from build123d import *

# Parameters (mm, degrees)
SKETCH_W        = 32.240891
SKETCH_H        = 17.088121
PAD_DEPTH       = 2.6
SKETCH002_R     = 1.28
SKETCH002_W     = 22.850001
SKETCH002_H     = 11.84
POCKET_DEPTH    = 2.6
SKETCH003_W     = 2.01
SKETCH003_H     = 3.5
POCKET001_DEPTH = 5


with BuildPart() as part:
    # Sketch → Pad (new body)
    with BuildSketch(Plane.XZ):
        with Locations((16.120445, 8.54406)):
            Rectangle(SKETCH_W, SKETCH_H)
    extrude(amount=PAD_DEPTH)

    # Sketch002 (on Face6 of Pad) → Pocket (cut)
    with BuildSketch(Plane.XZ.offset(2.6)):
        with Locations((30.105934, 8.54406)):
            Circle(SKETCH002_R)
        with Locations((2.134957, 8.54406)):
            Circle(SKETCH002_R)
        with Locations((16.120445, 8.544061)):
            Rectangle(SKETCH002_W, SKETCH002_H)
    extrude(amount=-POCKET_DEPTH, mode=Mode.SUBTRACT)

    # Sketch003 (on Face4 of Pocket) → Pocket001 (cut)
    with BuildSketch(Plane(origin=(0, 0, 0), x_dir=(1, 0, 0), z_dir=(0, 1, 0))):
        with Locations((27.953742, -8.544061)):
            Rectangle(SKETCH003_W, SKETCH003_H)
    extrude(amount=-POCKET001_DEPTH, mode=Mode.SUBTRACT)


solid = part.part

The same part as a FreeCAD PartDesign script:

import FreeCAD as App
import Part
import Sketcher
from FreeCAD import Vector

doc = App.newDocument("Part")
body = doc.addObject("PartDesign::Body", "Body")

# Sketch on XZ plane
sketch1 = body.newObject("Sketcher::SketchObject", "Sketch")
sketch1.AttachmentSupport = (doc.getObject("XZ_Plane"), [""])
sketch1.MapMode = "FlatFace"
sketch1.addGeometry([
    Part.LineSegment(Vector(0, 17, 0), Vector(0, 0, 0)),
    Part.LineSegment(Vector(0, 0, 0), Vector(32, 0, 0)),
    Part.LineSegment(Vector(32, 0, 0), Vector(32, 17, 0)),
    Part.LineSegment(Vector(32, 17, 0), Vector(0, 17, 0)),
], False)
sketch1.addConstraint([
    Sketcher.Constraint("Coincident", 0, 2, 1, 1),
    Sketcher.Constraint("Coincident", 1, 2, 2, 1),
    Sketcher.Constraint("Coincident", 2, 2, 3, 1),
    Sketcher.Constraint("Coincident", 3, 2, 0, 1),
    Sketcher.Constraint("Vertical", 0),
    Sketcher.Constraint("Horizontal", 1),
    Sketcher.Constraint("Vertical", 2),
    Sketcher.Constraint("Horizontal", 3),
    Sketcher.Constraint("Coincident", 0, 2, -1, 1),
    Sketcher.Constraint("DistanceX", 1, 1, 1, 2, 32.240891),
    Sketcher.Constraint("DistanceY", 0, 2, 0, 1, 17.088121),
])
pad1 = body.newObject("PartDesign::Pad", "Pad")
pad1.Profile = sketch1
pad1.Length = 2.6

# Sketch on XZ plane
sketch2 = body.newObject("Sketcher::SketchObject", "Sketch001")
sketch2.AttachmentSupport = (doc.getObject("XZ_Plane"), [""])
sketch2.MapMode = "FlatFace"
sketch2.AttachmentOffset = App.Placement(Vector(0, 0, 2.6), App.Rotation())
sketch2.addGeometry([
    Part.Circle(Vector(30.1, 8.5, 0), Vector(0, 0, 1), 1.3),  # 0
    Part.Circle(Vector(2.1, 8.5, 0), Vector(0, 0, 1), 1.3),  # 1
    Part.LineSegment(Vector(4.7, 14.5, 0), Vector(4.7, 2.6, 0)),  # 2
    Part.LineSegment(Vector(4.7, 2.6, 0), Vector(27.5, 2.6, 0)),  # 3
    Part.LineSegment(Vector(27.5, 2.6, 0), Vector(27.5, 14.5, 0)),  # 4
    Part.LineSegment(Vector(27.5, 14.5, 0), Vector(4.7, 14.5, 0)),  # 5
], False)
sketch2.addConstraint([
    Sketcher.Constraint("Coincident", 2, 2, 3, 1),
    Sketcher.Constraint("Coincident", 3, 2, 4, 1),
    Sketcher.Constraint("Coincident", 4, 2, 5, 1),
    Sketcher.Constraint("Coincident", 5, 2, 2, 1),
    Sketcher.Constraint("Vertical", 2),
    Sketcher.Constraint("Horizontal", 3),
    Sketcher.Constraint("Vertical", 4),
    Sketcher.Constraint("Horizontal", 5),
    Sketcher.Constraint("Equal", 0, 1),
    Sketcher.Constraint("Horizontal", 0, 3, 1, 3),
    Sketcher.Constraint("Diameter", 0, 2.56),
    Sketcher.Constraint("DistanceX", 3, 1, 3, 2, 22.850001),
    Sketcher.Constraint("DistanceY", 2, 2, 2, 1, 11.84),
    Sketcher.Constraint("DistanceY", 2, 2, 1, 3, 5.919999),
    Sketcher.Constraint("DistanceY", -1, 1, 0, 3, 8.54406),
    Sketcher.Constraint("DistanceX", 2, 2, 0, 3, 25.41049),
    Sketcher.Constraint("DistanceX", 1, 3, 3, 2, 25.410488),
    Sketcher.Constraint("DistanceX", -1, 1, 0, 3, 30.105934),
])
pocket1 = body.newObject("PartDesign::Pocket", "Pocket")
pocket1.Profile = sketch2
pocket1.Length = 2.6

# Sketch on XZ plane
sketch3 = body.newObject("Sketcher::SketchObject", "Sketch002")
sketch3.AttachmentSupport = (doc.getObject("XZ_Plane"), [""])
sketch3.MapMode = "FlatFace"
sketch3.addGeometry([
    Part.LineSegment(Vector(26.9, 6.8, 0), Vector(26.9, 10.3, 0)),
    Part.LineSegment(Vector(26.9, 10.3, 0), Vector(29, 10.3, 0)),
    Part.LineSegment(Vector(29, 10.3, 0), Vector(29, 6.8, 0)),
    Part.LineSegment(Vector(29, 6.8, 0), Vector(26.9, 6.8, 0)),
], False)
sketch3.addConstraint([
    Sketcher.Constraint("Coincident", 0, 2, 1, 1),
    Sketcher.Constraint("Coincident", 1, 2, 2, 1),
    Sketcher.Constraint("Coincident", 2, 2, 3, 1),
    Sketcher.Constraint("Coincident", 3, 2, 0, 1),
    Sketcher.Constraint("Vertical", 0),
    Sketcher.Constraint("Horizontal", 1),
    Sketcher.Constraint("Vertical", 2),
    Sketcher.Constraint("Horizontal", 3),
    Sketcher.Constraint("DistanceY", 0, 1, 0, 2, 3.5),
    Sketcher.Constraint("DistanceX", 1, 1, 1, 2, 2.01),
    Sketcher.Constraint("DistanceX", -1, 1, 0, 2, 26.948742),
    Sketcher.Constraint("DistanceY", -1, 1, 0, 2, 10.294061),
])
pocket2 = body.newObject("PartDesign::Pocket", "Pocket001")
pocket2.Profile = sketch3
pocket2.Length = 5
pocket2.Reversed = True

doc.recompute()
